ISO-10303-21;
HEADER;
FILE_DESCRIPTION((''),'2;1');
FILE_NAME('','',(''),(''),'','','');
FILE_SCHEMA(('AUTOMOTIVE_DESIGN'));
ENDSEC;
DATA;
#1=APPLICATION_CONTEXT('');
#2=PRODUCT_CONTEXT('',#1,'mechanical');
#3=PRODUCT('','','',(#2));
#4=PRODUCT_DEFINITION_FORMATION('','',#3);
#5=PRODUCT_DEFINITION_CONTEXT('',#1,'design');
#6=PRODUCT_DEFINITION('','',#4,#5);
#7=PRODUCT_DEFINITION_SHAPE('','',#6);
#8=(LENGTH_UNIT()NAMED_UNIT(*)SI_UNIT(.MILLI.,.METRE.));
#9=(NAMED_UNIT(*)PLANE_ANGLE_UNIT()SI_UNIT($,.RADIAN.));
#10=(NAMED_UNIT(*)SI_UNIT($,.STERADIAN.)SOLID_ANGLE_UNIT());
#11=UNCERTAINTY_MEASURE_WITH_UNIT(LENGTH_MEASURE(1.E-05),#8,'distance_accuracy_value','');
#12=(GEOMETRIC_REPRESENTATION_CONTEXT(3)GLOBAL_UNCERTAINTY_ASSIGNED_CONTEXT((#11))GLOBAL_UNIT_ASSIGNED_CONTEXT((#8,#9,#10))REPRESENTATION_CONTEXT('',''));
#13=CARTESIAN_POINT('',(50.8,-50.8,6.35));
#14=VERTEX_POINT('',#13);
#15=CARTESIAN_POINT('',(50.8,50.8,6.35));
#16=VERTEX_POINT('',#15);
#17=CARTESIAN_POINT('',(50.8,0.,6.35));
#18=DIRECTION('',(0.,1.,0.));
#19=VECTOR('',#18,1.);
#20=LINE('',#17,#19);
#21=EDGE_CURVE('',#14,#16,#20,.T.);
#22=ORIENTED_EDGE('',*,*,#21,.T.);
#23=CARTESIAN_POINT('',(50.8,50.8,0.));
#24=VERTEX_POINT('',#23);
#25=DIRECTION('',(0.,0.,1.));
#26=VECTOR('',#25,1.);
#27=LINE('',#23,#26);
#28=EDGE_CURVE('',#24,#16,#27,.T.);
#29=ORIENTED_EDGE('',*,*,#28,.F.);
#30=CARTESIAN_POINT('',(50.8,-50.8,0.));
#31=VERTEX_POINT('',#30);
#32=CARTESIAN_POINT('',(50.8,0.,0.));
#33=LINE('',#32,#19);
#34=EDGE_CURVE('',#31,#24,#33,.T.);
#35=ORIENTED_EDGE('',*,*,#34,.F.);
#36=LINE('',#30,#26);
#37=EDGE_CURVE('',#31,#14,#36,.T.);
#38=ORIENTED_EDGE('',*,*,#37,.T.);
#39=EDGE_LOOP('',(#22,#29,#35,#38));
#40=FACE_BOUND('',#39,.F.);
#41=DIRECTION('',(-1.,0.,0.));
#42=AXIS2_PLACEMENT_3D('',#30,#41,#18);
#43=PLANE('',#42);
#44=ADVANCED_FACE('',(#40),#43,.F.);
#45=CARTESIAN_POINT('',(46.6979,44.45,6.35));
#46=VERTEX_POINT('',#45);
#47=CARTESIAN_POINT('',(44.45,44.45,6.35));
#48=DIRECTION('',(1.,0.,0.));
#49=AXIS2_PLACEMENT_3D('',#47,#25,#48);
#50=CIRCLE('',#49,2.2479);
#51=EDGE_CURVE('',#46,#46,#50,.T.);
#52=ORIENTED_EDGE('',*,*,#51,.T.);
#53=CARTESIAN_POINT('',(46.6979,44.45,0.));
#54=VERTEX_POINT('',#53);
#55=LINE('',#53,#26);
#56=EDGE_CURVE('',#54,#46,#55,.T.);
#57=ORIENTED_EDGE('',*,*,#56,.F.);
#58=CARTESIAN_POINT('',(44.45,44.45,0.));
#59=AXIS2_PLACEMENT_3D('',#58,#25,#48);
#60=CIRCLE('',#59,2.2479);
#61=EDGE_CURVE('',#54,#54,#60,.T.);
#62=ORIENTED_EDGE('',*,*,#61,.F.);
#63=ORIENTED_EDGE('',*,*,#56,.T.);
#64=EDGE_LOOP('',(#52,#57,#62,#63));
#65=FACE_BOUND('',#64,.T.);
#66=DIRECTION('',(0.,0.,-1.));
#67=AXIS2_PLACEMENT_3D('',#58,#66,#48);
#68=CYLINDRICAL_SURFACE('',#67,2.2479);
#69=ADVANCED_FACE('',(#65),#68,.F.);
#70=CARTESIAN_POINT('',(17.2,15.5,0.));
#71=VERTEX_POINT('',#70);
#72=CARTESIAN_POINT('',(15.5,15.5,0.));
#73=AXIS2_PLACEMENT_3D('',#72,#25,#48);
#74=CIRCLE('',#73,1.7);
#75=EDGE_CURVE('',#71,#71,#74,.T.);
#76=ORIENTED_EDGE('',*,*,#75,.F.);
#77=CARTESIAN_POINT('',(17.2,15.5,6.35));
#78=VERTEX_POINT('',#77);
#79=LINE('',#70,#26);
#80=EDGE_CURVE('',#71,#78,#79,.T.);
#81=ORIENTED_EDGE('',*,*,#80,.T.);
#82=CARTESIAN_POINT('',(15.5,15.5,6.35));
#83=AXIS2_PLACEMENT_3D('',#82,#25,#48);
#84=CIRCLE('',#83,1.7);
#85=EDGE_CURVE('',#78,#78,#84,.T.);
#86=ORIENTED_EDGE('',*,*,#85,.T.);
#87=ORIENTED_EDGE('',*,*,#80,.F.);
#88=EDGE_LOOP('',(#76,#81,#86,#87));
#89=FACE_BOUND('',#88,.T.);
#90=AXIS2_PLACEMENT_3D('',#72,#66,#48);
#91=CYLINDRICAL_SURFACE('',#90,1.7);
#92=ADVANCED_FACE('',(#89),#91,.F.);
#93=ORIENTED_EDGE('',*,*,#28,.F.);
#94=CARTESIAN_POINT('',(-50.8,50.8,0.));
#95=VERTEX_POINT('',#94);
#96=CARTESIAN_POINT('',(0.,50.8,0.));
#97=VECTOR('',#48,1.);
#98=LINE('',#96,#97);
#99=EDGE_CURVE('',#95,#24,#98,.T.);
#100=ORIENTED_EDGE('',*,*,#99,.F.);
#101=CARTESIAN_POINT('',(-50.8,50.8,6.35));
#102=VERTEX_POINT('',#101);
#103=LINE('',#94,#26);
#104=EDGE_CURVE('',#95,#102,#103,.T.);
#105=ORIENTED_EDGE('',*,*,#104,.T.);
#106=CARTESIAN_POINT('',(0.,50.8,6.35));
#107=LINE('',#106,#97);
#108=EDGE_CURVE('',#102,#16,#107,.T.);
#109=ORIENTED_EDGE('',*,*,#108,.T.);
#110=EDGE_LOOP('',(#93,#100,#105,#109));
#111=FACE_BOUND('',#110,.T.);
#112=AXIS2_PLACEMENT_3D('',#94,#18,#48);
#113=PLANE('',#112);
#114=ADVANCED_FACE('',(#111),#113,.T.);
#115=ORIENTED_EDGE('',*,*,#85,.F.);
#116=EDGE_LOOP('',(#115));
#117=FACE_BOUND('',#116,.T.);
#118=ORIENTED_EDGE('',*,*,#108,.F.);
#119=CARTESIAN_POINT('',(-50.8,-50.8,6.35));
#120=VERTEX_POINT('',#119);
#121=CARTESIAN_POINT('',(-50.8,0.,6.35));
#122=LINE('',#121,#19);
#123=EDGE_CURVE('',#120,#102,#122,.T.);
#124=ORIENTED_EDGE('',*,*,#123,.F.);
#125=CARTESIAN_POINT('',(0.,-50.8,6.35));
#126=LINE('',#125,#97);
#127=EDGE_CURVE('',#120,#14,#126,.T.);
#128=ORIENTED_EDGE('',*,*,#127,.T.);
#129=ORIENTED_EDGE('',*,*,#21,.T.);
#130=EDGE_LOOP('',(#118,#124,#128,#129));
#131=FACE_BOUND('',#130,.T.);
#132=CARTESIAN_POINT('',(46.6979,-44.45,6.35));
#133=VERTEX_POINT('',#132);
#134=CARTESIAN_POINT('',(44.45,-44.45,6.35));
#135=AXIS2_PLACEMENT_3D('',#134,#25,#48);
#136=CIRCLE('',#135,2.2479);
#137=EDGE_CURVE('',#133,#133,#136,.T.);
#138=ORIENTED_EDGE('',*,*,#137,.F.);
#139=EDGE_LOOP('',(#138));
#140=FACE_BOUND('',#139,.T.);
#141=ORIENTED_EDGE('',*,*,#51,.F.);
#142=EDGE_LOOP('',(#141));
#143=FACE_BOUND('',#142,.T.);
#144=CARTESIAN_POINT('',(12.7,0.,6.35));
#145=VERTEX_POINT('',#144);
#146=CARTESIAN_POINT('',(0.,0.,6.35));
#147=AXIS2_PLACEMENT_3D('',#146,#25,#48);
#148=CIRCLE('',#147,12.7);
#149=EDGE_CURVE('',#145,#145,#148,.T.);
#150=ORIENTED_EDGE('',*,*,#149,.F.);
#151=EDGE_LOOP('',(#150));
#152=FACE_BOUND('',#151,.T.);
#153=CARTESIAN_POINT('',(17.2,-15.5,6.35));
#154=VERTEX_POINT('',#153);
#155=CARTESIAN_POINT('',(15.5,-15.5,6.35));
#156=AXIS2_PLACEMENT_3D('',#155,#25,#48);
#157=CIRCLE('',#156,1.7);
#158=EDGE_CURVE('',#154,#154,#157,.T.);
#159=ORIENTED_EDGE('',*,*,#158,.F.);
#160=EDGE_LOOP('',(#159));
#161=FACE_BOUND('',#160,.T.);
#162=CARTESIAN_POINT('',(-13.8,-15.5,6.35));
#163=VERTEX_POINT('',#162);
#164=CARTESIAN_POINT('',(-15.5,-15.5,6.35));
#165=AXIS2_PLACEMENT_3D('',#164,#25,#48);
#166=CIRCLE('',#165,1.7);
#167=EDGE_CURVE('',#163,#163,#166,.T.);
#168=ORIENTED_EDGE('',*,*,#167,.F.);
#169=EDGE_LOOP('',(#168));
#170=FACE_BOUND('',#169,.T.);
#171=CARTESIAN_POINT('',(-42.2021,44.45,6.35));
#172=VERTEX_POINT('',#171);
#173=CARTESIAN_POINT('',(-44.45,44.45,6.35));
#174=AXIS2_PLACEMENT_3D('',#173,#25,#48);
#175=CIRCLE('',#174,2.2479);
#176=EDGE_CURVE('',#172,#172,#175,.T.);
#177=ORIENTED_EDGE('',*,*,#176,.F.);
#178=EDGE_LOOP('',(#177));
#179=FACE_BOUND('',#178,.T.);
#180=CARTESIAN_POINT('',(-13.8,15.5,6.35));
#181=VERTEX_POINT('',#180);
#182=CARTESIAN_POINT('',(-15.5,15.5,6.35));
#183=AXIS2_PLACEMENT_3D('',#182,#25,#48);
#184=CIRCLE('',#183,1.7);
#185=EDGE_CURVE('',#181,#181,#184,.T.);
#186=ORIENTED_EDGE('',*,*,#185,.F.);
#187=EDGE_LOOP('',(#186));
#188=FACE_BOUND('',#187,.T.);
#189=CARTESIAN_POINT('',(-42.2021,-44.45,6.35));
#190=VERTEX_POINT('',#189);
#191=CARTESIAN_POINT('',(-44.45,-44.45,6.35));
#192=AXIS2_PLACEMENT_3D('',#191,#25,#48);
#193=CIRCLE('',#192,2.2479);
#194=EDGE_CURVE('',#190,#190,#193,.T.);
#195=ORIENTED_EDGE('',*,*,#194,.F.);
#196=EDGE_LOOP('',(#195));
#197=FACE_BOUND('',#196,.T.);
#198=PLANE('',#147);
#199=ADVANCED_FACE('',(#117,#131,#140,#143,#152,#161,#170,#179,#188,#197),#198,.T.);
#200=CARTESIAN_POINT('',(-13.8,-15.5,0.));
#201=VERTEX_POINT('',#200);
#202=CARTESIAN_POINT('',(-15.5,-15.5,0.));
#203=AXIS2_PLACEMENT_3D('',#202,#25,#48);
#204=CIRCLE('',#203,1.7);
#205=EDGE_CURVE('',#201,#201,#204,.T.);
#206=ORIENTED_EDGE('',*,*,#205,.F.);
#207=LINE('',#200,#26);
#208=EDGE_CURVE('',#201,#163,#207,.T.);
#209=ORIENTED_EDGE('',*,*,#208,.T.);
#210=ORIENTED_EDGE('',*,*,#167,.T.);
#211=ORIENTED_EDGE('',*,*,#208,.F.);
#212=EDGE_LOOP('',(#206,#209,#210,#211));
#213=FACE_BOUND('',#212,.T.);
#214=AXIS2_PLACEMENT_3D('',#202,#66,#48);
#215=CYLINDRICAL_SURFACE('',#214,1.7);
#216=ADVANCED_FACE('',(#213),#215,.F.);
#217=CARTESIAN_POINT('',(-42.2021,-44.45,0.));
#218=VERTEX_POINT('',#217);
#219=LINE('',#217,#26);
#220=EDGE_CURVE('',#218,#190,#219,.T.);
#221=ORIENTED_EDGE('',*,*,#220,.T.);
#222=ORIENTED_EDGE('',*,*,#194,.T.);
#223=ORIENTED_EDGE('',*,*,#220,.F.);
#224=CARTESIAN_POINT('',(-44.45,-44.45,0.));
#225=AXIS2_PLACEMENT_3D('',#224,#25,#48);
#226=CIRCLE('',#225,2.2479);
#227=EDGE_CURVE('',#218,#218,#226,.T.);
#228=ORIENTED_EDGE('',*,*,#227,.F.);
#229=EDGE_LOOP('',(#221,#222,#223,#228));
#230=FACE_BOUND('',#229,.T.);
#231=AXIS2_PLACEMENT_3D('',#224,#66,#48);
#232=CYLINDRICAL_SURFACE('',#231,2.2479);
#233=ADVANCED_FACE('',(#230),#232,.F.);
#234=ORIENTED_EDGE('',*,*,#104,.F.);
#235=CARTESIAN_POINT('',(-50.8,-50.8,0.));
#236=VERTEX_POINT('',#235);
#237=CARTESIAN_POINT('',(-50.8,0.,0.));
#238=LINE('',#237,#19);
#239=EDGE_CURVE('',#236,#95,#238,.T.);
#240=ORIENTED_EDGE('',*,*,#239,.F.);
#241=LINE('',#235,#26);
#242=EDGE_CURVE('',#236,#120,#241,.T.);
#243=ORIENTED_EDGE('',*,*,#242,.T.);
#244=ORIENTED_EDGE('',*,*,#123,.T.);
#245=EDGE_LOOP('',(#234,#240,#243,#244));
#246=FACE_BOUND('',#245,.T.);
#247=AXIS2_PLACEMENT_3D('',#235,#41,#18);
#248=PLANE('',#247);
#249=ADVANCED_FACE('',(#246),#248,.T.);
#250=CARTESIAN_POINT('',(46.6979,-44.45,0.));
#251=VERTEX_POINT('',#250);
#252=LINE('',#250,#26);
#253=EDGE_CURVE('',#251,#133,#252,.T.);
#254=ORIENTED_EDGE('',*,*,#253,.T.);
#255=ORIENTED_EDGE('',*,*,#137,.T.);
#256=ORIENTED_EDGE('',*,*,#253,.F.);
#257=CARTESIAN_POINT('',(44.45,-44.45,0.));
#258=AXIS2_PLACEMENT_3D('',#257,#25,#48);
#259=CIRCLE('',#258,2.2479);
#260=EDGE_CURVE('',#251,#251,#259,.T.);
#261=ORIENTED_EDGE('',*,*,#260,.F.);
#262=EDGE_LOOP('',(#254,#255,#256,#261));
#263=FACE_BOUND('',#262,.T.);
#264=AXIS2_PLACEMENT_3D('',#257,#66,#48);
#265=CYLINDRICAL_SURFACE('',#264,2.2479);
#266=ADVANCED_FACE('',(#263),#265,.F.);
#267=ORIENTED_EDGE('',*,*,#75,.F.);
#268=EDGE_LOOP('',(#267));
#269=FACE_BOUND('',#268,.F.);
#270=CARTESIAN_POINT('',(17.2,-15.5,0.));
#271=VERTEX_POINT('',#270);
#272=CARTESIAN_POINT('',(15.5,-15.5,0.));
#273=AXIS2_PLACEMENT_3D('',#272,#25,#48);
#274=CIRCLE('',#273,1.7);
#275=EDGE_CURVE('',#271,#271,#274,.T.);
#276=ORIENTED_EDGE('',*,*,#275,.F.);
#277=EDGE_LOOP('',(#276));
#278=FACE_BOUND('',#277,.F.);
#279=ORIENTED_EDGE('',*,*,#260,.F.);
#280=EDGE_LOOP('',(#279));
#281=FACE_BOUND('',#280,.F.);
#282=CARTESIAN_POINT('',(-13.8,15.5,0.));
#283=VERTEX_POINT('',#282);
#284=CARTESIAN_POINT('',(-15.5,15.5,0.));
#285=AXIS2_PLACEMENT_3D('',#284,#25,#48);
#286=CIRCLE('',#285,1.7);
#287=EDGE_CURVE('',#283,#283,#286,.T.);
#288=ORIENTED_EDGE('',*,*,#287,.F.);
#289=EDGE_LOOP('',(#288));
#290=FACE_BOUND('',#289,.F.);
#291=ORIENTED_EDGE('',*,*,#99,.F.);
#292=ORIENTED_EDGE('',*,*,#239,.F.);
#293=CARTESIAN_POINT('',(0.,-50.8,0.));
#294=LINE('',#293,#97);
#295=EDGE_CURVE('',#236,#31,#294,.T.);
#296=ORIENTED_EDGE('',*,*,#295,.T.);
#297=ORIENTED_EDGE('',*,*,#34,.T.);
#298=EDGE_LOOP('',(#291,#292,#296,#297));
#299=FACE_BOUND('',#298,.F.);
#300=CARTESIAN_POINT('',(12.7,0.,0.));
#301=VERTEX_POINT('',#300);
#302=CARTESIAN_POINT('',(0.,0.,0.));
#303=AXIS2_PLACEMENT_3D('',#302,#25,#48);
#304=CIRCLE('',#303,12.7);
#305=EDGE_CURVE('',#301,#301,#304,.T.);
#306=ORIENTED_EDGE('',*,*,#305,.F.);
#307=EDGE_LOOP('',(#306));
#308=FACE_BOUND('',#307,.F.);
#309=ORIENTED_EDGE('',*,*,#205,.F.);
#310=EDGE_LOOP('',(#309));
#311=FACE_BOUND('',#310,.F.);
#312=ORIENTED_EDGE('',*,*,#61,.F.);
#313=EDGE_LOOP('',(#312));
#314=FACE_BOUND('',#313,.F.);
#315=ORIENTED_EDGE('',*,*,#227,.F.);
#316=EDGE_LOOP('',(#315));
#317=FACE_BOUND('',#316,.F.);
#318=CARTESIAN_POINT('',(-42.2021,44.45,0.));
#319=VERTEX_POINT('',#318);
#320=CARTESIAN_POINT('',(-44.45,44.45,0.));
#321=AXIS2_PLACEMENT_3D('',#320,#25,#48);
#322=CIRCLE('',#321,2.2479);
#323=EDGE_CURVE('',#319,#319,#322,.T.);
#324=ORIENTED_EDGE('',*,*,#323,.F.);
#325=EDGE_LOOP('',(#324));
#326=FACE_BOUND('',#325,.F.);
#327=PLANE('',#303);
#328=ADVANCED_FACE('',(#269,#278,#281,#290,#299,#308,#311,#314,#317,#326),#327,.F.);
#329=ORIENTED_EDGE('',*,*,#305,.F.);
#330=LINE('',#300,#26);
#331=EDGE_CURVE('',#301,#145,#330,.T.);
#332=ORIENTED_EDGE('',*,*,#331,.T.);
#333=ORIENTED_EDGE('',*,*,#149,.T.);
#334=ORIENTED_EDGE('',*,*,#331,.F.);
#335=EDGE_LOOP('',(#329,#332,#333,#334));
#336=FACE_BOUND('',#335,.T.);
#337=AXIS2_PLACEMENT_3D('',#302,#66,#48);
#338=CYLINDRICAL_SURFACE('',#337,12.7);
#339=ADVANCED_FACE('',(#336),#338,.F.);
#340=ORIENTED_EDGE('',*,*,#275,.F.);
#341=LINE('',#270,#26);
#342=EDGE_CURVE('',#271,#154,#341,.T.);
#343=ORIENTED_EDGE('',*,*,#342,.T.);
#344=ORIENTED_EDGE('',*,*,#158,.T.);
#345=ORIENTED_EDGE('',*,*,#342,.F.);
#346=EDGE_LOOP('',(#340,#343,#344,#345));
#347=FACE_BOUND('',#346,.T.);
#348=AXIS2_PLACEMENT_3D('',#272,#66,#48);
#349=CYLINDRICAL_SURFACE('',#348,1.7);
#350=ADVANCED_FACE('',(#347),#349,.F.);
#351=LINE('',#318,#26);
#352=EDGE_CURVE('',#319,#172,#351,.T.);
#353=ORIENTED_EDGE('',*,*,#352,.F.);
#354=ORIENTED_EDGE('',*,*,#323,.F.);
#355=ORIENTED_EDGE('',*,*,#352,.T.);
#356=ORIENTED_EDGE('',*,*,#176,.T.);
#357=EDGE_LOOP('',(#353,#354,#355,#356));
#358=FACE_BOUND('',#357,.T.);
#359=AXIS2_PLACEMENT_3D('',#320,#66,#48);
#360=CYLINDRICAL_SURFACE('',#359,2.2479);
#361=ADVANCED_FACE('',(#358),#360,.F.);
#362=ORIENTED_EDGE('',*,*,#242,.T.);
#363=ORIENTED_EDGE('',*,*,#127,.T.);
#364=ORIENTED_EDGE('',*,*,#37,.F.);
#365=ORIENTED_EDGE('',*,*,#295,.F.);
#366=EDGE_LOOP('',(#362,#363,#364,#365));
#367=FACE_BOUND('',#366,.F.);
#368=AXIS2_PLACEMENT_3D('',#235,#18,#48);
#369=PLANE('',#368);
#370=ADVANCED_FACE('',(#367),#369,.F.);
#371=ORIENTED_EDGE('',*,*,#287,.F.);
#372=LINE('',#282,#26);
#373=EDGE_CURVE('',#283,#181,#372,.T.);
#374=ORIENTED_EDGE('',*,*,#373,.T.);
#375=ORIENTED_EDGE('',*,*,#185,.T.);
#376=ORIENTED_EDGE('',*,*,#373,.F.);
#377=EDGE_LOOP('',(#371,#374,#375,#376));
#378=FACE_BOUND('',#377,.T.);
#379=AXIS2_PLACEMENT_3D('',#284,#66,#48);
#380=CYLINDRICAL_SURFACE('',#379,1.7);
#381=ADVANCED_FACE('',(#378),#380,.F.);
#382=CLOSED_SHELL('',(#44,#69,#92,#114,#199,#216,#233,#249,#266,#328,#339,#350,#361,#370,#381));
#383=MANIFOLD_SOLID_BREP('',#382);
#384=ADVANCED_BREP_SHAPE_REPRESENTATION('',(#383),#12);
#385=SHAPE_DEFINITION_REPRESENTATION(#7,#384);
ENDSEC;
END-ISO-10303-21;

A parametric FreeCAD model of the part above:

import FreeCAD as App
import Part
import Sketcher
Q = App.Units.Quantity


def add_polygon(sketch, points):
    """Adds a closed chain of lines whose ends are joined by coincident constraints."""
    first, n = sketch.GeometryCount, len(points)
    for a, b in zip(points, points[1:] + points[:1]):
        sketch.addGeometry(Part.LineSegment(App.Vector(*a, 0), App.Vector(*b, 0)), False)
    for i in range(n):
        sketch.addConstraint(Sketcher.Constraint("Coincident", first + i, 2, first + (i + 1) % n, 1))

doc = App.newDocument("Part")
body = doc.addObject("PartDesign::Body", "Body")

# Sketch on XY plane
sketch1 = body.newObject("Sketcher::SketchObject", "Sketch")
sketch1.AttachmentSupport = (doc.getObject("XY_Plane"), [""])
sketch1.MapMode = "FlatFace"
add_polygon(sketch1, [(-50.8, 50.8), (-50.8, -50.8), (50.8, -50.8), (50.8, 50.8)])  # lines 0-3
sketch1.addGeometry(Part.Circle(App.Vector(-44.5, -44.5, 0), App.Vector(0, 0, 1), 2.2), False)  # 4
sketch1.addGeometry(Part.Circle(App.Vector(-15.5, -15.5, 0), App.Vector(0, 0, 1), 1.7), False)  # 5
sketch1.addGeometry(Part.Circle(App.Vector(0, 0, 0), App.Vector(0, 0, 1), 12.7), False)  # 6
sketch1.addGeometry(Part.Circle(App.Vector(44.5, -44.5, 0), App.Vector(0, 0, 1), 2.2), False)  # 7
sketch1.addGeometry(Part.Circle(App.Vector(15.5, -15.5, 0), App.Vector(0, 0, 1), 1.7), False)  # 8
sketch1.addGeometry(Part.Circle(App.Vector(-15.5, 15.5, 0), App.Vector(0, 0, 1), 1.7), False)  # 9
sketch1.addGeometry(Part.Circle(App.Vector(-44.5, 44.5, 0), App.Vector(0, 0, 1), 2.2), False)  # 10
sketch1.addGeometry(Part.Circle(App.Vector(15.5, 15.5, 0), App.Vector(0, 0, 1), 1.7), False)  # 11
sketch1.addGeometry(Part.Circle(App.Vector(44.5, 44.5, 0), App.Vector(0, 0, 1), 2.2), False)  # 12
sketch1.addConstraint([
    Sketcher.Constraint("Vertical", 0),
    Sketcher.Constraint("Horizontal", 1),
    Sketcher.Constraint("Vertical", 2),
    Sketcher.Constraint("Horizontal", 3),
    Sketcher.Constraint("Coincident", 6, 3, -1, 1),
    Sketcher.Constraint("Equal", 4, 7),
    Sketcher.Constraint("Equal", 5, 8),
    Sketcher.Constraint("Equal", 8, 9),
    Sketcher.Constraint("Equal", 7, 10),
    Sketcher.Constraint("Equal", 9, 11),
    Sketcher.Constraint("Equal", 10, 12),
    Sketcher.Constraint("Symmetric", 8, 3, 9, 3, -1, 1),
    Sketcher.Constraint("Symmetric", 7, 3, 10, 3, -1, 1),
    Sketcher.Constraint("Symmetric", 5, 3, 11, 3, -1, 1),
    Sketcher.Constraint("Symmetric", 4, 3, 12, 3, -1, 1),
    Sketcher.Constraint("Symmetric", 0, 2, 2, 2, -1, 1),
    Sketcher.Constraint("Symmetric", 4, 3, 7, 3, -2),
    Sketcher.Constraint("Symmetric", 5, 3, 8, 3, -2),
    Sketcher.Constraint("Equal", 3, 0),
    Sketcher.Constraint("Diameter", 6, Q("1 in")),
    Sketcher.Constraint("DistanceX", 1, 1, 1, 2, Q("4 in")),
    Sketcher.Constraint("Diameter", 4, Q("0.177 in")),
    Sketcher.Constraint("DistanceX", 4, 3, 7, 3, Q("3.5 in")),
    Sketcher.Constraint("DistanceY", 4, 3, 10, 3, Q("3.5 in")),
    Sketcher.Constraint("Diameter", 5, 3.4),
    Sketcher.Constraint("DistanceX", 5, 3, -1, 1, 15.5),
    Sketcher.Constraint("DistanceY", 5, 3, -1, 1, 15.5),
])
pad1 = body.newObject("PartDesign::Pad", "Pad")
pad1.Profile = sketch1
pad1.Length = Q("0.25 in")

doc.recompute()
